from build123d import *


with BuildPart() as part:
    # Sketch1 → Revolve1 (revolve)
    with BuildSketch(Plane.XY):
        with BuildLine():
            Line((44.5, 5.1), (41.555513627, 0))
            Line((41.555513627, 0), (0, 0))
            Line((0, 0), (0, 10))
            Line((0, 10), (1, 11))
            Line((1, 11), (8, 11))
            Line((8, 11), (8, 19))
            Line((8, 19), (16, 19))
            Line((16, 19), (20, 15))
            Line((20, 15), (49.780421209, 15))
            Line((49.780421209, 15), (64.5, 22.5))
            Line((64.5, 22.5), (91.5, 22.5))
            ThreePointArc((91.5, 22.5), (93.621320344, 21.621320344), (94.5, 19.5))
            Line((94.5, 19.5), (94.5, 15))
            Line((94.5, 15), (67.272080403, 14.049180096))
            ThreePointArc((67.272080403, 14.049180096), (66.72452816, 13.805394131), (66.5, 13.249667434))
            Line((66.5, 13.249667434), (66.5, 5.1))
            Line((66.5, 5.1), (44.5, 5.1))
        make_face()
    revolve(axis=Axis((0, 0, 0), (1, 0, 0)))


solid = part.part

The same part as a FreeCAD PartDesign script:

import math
import FreeCAD as App
import Part
import Sketcher
Q = App.Units.Quantity

doc = App.newDocument("Part")
body = doc.addObject("PartDesign::Body", "Body")

sketch1 = body.newObject("Sketcher::SketchObject", "Sketch")
sketch1.AttachmentSupport = (doc.getObject("XY_Plane"), [""])
sketch1.MapMode = "FlatFace"
sketch1.addGeometry([
    Part.LineSegment(App.Vector(41.6, 0, 0), App.Vector(44.5, 5.1, 0)),
    Part.LineSegment(App.Vector(44.5, 5.1, 0), App.Vector(66.5, 5.1, 0)),
    Part.LineSegment(App.Vector(66.5, 5.1, 0), App.Vector(66.5, 13.2, 0)),
    Part.ArcOfCircle(Part.Circle(App.Vector(67.3, 13.2, 0), App.Vector(0, 0, 1), 0.8), math.radians(92), math.radians(180)),
    Part.LineSegment(App.Vector(67.3, 14, 0), App.Vector(94.5, 15, 0)),
    Part.LineSegment(App.Vector(94.5, 15, 0), App.Vector(94.5, 19.5, 0)),
    Part.ArcOfCircle(Part.Circle(App.Vector(91.5, 19.5, 0), App.Vector(0, 0, 1), 3), math.radians(0), math.radians(90)),
    Part.LineSegment(App.Vector(91.5, 22.5, 0), App.Vector(64.5, 22.5, 0)),
    Part.LineSegment(App.Vector(64.5, 22.5, 0), App.Vector(49.8, 15, 0)),
    Part.LineSegment(App.Vector(49.8, 15, 0), App.Vector(20, 15, 0)),
    Part.LineSegment(App.Vector(20, 15, 0), App.Vector(16, 19, 0)),
    Part.LineSegment(App.Vector(16, 19, 0), App.Vector(8, 19, 0)),
    Part.LineSegment(App.Vector(8, 19, 0), App.Vector(8, 11, 0)),
    Part.LineSegment(App.Vector(8, 11, 0), App.Vector(1, 11, 0)),
    Part.LineSegment(App.Vector(1, 11, 0), App.Vector(0, 10, 0)),
    Part.LineSegment(App.Vector(0, 10, 0), App.Vector(0, 0, 0)),
    Part.LineSegment(App.Vector(0, 0, 0), App.Vector(41.6, 0, 0)),
], False)
sketch1.addConstraint([
    Sketcher.Constraint("Coincident", 0, 2, 1, 1),
    Sketcher.Constraint("Coincident", 1, 2, 2, 1),
    Sketcher.Constraint("Tangent", 2, 2, 3, 2),
    Sketcher.Constraint("Tangent", 3, 1, 4, 1),
    Sketcher.Constraint("Coincident", 4, 2, 5, 1),
    Sketcher.Constraint("Tangent", 5, 2, 6, 1),
    Sketcher.Constraint("Tangent", 6, 2, 7, 1),
    Sketcher.Constraint("Coincident", 7, 2, 8, 1),
    Sketcher.Constraint("Coincident", 8, 2, 9, 1),
    Sketcher.Constraint("Coincident", 9, 2, 10, 1),
    Sketcher.Constraint("Coincident", 10, 2, 11, 1),
    Sketcher.Constraint("Coincident", 11, 2, 12, 1),
    Sketcher.Constraint("Coincident", 12, 2, 13, 1),
    Sketcher.Constraint("Coincident", 13, 2, 14, 1),
    Sketcher.Constraint("Coincident", 14, 2, 15, 1),
    Sketcher.Constraint("Coincident", 15, 2, 16, 1),
    Sketcher.Constraint("Coincident", 16, 2, 0, 1),
    Sketcher.Constraint("Horizontal", 1),
    Sketcher.Constraint("Vertical", 2),
    Sketcher.Constraint("Vertical", 5),
    Sketcher.Constraint("Horizontal", 7),
    Sketcher.Constraint("Horizontal", 9),
    Sketcher.Constraint("Horizontal", 11),
    Sketcher.Constraint("Vertical", 12),
    Sketcher.Constraint("Horizontal", 13),
    Sketcher.Constraint("Vertical", 15),
    Sketcher.Constraint("Horizontal", 16),
    Sketcher.Constraint("Coincident", 15, 2, -1, 1),
    Sketcher.Constraint("Perpendicular", 10, 14),
    Sketcher.Constraint("Horizontal", 4, 2, 8, 2),
    Sketcher.Constraint("Equal", 11, 12),
    Sketcher.Constraint("Radius", 6, 3.0),
    Sketcher.Constraint("Radius", 3, 0.8),
    Sketcher.Constraint("DistanceX", 1, 1, 1, 2, 22.0),
    Sketcher.Constraint("DistanceX", 7, 2, 7, 1, 27.0),
    Sketcher.Constraint("DistanceX", 11, 2, 11, 1, 8.0),
    Sketcher.Constraint("DistanceX", 13, 2, 13, 1, 7.0),
    Sketcher.Constraint("DistanceY", 15, 2, 15, 1, 10.0),
    Sketcher.Constraint("Angle", 0, Q("60 deg")),
    Sketcher.Constraint("Angle", 4, Q("2 deg")),
    Sketcher.Constraint("Angle", 8, Q("-153 deg")),
    Sketcher.Constraint("Angle", 10, Q("135 deg")),
    Sketcher.Constraint("DistanceY", 5, 1, 5, 2, 4.5),
    Sketcher.Constraint("DistanceY", -1, 1, 4, 2, 15.0),
    Sketcher.Constraint("DistanceX", -1, 1, 9, 2, 20.0),
    Sketcher.Constraint("DistanceX", 0, 2, 6, 3, 47.0),
    Sketcher.Constraint("DistanceX", -1, 1, 3, 3, 67.3),
    Sketcher.Constraint("DistanceY", -1, 1, 0, 2, 5.1),
])
revolution = body.newObject("PartDesign::Revolution", "Revolution")
revolution.Profile = sketch1
revolution.ReferenceAxis = (sketch1, ["H_Axis"])
revolution.Angle = 360

doc.recompute()
